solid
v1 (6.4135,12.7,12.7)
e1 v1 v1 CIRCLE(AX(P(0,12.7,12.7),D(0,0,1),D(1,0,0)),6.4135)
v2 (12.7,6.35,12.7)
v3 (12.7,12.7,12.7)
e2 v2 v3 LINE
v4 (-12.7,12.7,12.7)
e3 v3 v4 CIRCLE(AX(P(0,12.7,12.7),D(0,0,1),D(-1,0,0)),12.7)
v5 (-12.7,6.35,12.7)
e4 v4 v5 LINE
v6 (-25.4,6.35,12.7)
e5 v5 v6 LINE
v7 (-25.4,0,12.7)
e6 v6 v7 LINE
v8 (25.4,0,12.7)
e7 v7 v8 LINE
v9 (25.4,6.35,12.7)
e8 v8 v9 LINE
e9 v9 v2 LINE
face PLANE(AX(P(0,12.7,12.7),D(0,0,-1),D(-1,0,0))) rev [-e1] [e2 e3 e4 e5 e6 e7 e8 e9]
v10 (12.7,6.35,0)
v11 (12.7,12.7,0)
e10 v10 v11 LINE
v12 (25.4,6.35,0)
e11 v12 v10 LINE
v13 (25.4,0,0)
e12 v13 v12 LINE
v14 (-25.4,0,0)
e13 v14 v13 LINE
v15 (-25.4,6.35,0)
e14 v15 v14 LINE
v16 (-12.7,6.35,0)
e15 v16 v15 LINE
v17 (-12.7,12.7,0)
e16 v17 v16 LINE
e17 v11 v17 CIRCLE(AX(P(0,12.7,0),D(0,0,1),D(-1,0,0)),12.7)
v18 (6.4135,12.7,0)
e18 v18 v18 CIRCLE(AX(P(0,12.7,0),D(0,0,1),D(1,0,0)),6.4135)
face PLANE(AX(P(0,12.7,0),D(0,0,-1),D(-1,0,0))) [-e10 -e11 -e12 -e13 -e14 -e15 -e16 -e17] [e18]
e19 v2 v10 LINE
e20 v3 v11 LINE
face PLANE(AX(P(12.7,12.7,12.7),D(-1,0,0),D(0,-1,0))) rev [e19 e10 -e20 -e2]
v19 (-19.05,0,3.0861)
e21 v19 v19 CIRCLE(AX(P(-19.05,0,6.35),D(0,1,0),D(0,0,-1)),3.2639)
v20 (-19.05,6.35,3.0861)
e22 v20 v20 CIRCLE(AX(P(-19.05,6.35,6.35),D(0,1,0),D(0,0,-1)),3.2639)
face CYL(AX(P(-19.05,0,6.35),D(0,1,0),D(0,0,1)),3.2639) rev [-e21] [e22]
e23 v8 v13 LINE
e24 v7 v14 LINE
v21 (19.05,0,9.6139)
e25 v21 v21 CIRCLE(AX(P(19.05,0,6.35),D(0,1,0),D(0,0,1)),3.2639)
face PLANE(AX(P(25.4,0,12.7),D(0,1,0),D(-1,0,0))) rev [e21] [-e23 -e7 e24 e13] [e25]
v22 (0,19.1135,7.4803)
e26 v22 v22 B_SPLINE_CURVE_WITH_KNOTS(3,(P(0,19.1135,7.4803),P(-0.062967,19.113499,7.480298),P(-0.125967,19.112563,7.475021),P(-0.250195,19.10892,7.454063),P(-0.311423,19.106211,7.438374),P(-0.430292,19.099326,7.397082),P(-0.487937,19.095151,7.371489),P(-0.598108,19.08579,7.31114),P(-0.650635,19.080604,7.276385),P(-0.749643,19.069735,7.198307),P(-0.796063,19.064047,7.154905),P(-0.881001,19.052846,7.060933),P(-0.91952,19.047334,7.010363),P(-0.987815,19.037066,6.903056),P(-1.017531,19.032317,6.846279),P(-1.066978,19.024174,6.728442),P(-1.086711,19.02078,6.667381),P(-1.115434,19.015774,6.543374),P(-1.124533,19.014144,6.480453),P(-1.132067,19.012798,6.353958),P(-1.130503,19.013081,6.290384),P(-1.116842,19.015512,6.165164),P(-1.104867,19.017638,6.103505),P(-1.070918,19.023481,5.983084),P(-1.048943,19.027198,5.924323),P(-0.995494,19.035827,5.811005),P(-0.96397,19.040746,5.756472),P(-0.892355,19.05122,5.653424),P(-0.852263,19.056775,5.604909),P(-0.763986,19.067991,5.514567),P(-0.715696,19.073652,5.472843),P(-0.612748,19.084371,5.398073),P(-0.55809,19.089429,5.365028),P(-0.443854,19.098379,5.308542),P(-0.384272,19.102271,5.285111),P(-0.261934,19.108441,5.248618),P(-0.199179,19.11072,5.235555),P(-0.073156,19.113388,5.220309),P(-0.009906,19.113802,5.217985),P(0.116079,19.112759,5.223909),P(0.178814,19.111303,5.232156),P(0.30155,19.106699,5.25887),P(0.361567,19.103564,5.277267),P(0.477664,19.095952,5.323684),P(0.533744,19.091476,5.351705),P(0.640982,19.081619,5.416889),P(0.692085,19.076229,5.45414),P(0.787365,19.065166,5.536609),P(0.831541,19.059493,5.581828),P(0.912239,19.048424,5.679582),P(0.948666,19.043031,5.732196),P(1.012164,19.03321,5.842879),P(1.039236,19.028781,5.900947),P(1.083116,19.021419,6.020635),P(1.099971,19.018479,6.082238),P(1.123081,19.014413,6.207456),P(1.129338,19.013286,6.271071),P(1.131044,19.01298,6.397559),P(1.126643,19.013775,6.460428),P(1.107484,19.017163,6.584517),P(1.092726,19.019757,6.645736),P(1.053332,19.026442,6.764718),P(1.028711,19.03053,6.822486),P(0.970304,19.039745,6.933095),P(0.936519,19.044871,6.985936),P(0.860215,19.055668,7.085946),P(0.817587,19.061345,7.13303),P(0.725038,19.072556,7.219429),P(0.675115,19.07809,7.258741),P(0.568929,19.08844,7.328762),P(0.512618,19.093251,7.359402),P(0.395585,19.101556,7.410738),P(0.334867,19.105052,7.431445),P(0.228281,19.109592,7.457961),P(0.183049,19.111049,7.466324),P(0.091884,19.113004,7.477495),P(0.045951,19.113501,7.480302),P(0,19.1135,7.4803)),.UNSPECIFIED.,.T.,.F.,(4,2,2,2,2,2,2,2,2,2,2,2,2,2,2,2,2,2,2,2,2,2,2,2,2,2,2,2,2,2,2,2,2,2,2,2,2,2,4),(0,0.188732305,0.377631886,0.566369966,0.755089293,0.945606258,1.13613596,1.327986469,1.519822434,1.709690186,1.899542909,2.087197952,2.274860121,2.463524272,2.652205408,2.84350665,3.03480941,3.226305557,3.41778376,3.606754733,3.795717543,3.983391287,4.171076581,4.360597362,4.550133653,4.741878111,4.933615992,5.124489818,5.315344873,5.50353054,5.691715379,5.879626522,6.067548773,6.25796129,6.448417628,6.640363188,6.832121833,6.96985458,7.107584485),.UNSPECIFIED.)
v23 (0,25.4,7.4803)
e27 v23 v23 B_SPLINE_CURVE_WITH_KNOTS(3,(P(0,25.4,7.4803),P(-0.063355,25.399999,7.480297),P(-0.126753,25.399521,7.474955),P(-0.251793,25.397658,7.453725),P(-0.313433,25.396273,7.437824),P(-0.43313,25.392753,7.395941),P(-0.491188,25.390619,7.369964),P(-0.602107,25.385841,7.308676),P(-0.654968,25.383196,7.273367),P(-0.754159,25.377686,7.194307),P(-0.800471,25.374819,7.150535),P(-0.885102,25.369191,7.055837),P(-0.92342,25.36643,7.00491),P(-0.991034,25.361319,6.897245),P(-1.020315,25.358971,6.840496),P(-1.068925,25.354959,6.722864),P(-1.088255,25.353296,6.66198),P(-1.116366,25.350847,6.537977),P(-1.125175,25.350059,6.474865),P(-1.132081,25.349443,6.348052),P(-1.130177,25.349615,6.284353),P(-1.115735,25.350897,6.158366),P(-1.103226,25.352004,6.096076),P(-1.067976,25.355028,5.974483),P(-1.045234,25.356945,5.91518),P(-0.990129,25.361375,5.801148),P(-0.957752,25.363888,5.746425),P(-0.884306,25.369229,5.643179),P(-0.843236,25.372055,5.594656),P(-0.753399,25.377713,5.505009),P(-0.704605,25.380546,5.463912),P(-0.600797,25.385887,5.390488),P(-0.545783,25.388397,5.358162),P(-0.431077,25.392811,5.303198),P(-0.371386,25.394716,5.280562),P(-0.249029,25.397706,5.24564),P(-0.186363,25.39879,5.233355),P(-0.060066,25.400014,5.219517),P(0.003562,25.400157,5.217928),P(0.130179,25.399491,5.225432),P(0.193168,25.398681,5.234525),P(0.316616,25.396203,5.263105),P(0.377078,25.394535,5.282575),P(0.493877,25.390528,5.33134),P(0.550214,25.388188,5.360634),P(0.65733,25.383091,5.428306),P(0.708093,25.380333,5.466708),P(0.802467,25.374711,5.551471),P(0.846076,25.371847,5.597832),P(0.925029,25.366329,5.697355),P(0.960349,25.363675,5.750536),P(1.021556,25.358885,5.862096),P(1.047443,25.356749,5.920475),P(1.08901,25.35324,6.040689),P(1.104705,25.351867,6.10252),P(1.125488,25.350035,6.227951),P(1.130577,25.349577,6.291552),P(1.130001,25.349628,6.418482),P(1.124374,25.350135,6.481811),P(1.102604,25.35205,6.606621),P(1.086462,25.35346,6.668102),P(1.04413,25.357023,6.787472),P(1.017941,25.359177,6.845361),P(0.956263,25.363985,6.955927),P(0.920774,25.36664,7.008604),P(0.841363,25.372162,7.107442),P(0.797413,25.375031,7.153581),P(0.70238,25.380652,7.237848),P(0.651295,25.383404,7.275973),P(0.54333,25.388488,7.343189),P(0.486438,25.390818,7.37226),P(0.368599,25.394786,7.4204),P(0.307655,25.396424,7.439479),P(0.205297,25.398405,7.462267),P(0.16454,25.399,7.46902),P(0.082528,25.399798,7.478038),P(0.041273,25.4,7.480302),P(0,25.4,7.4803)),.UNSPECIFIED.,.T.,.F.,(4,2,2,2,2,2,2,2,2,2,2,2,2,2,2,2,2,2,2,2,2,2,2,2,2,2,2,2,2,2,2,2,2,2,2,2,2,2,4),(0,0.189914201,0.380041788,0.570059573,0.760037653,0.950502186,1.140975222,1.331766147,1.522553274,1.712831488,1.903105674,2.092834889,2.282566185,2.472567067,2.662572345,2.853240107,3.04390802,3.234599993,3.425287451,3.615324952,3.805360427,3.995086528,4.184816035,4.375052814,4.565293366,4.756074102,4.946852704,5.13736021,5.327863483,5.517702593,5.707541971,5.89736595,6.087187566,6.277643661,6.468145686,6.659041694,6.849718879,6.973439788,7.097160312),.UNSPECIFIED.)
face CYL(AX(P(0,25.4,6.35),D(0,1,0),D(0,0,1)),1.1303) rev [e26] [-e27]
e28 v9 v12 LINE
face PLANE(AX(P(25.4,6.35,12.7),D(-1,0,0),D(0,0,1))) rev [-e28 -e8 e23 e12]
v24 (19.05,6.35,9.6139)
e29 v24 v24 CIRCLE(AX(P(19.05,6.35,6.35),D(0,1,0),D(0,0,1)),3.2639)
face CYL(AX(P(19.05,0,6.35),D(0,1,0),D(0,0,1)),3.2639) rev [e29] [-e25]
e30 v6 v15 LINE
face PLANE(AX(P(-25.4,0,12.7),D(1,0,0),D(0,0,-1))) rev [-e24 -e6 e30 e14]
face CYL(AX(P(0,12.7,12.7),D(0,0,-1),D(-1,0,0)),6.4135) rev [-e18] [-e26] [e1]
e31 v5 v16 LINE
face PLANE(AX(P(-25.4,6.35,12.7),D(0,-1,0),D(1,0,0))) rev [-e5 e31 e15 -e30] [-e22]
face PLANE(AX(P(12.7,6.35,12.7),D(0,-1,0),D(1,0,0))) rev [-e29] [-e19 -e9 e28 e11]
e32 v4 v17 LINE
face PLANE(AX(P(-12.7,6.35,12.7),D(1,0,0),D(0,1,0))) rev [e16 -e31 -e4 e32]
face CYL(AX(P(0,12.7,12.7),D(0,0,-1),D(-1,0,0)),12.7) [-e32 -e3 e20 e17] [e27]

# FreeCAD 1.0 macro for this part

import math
import FreeCAD as App
import Part
import Sketcher
Q = App.Units.Quantity

doc = App.newDocument("Part")
params = doc.addObject("Spreadsheet::Sheet", "Params")
for row, (alias, value) in enumerate([
    ("sketch1_radius", "0.5 in"),
    ("sketch1_width", "2 in"),
    ("sketch1_diameter", "0.505 in"),
    ("sketch1_height", "0.25 in"),
    ("pad1_length", "0.5 in"),
    ("sketch2_diameter", "0.257 in"),
    ("sketch3_diameter", "0.089 in"),
    ("hole_diameter", "0.089 in"),
    ("hole_depth", "0.3 in"),
], start=1):
    params.set(f"A{row}", alias)
    params.set(f"B{row}", "=" + value)
    params.setAlias(f"B{row}", alias)

body = doc.addObject("PartDesign::Body", "Body")

# Sketch on XY plane
sketch1 = body.newObject("Sketcher::SketchObject", "Sketch")
sketch1.AttachmentSupport = (doc.getObject("XY_Plane"), [""])
sketch1.MapMode = "FlatFace"
sketch1.addGeometry([
    Part.LineSegment(App.Vector(13, 6, 0), App.Vector(13, 13, 0)),  # 0
    Part.ArcOfCircle(Part.Circle(App.Vector(0, 13, 0), App.Vector(0, 0, 1), 13), math.radians(0), math.radians(180)),  # 1
    Part.LineSegment(App.Vector(-13, 13, 0), App.Vector(-13, 6, 0)),  # 2
    Part.LineSegment(App.Vector(-13, 6, 0), App.Vector(-25, 6, 0)),  # 3
    Part.LineSegment(App.Vector(-25, 6, 0), App.Vector(-25, 0, 0)),  # 4
    Part.LineSegment(App.Vector(-25, 0, 0), App.Vector(25, 0, 0)),  # 5
    Part.LineSegment(App.Vector(25, 0, 0), App.Vector(25, 6, 0)),  # 6
    Part.LineSegment(App.Vector(25, 6, 0), App.Vector(13, 6, 0)),  # 7
    Part.Circle(App.Vector(0, 13, 0), App.Vector(0, 0, 1), 6),  # 8
], False)
sketch1.addConstraint([
    Sketcher.Constraint("Tangent", 0, 2, 1, 1),
    Sketcher.Constraint("Tangent", 1, 2, 2, 1),
    Sketcher.Constraint("Coincident", 2, 2, 3, 1),
    Sketcher.Constraint("Coincident", 3, 2, 4, 1),
    Sketcher.Constraint("Coincident", 4, 2, 5, 1),
    Sketcher.Constraint("Coincident", 5, 2, 6, 1),
    Sketcher.Constraint("Coincident", 6, 2, 7, 1),
    Sketcher.Constraint("Coincident", 7, 2, 0, 1),
    Sketcher.Constraint("Vertical", 0),
    Sketcher.Constraint("Vertical", 2),
    Sketcher.Constraint("Horizontal", 3),
    Sketcher.Constraint("Vertical", 4),
    Sketcher.Constraint("Horizontal", 5),
    Sketcher.Constraint("Vertical", 6),
    Sketcher.Constraint("Horizontal", 7),
    Sketcher.Constraint("Coincident", 8, 3, 1, 3),
    Sketcher.Constraint("Symmetric", 4, 2, 5, 2, -1, 1),
    Sketcher.Constraint("Symmetric", 2, 2, 7, 2, -2),
    Sketcher.Constraint("Equal", 2, 4),
    Sketcher.Constraint("Radius", 1, Q("0.5 in")),
    Sketcher.Constraint("DistanceX", 5, 1, 5, 2, Q("2 in")),
    Sketcher.Constraint("Diameter", 8, Q("0.505 in")),
    Sketcher.Constraint("DistanceY", 0, 1, 0, 2, Q("0.25 in")),
])
sketch1.setExpression("Constraints[19]", "Params.sketch1_radius")
sketch1.setExpression("Constraints[20]", "Params.sketch1_width")
sketch1.setExpression("Constraints[21]", "Params.sketch1_diameter")
sketch1.setExpression("Constraints[22]", "Params.sketch1_height")
pad1 = body.newObject("PartDesign::Pad", "Pad")
pad1.Profile = sketch1
pad1.setExpression("Length", "Params.pad1_length")

# Sketch on XZ plane
sketch2 = body.newObject("Sketcher::SketchObject", "Sketch001")
sketch2.AttachmentSupport = (doc.getObject("XZ_Plane"), [""])
sketch2.MapMode = "FlatFace"
sketch2.AttachmentOffset = App.Placement(App.Vector(0, 0, -0.25 * 25.4), App.Rotation())
sketch2.addGeometry([
    Part.Circle(App.Vector(19.1, 6.3, 0), App.Vector(0, 0, 1), 3.3),
    Part.Circle(App.Vector(-19.1, 6.3, 0), App.Vector(0, 0, 1), 3.3),
], False)
sketch2.addConstraint([
    Sketcher.Constraint("Equal", 0, 1),
    Sketcher.Constraint("Symmetric", 0, 3, 1, 3, -2),
    Sketcher.Constraint("Diameter", 0, Q("0.257 in")),
    Sketcher.Constraint("DistanceX", 1, 3, 0, 3, Q("1.5 in")),
    Sketcher.Constraint("DistanceY", -1, 1, 0, 3, Q("0.25 in")),
])
sketch2.setExpression("Constraints[2]", "Params.sketch2_diameter")
pocket1 = body.newObject("PartDesign::Pocket", "Pocket")
pocket1.Profile = sketch2
pocket1.Type = "ThroughAll"
pocket1.Reversed = True

# Sketch on XZ plane
sketch3 = body.newObject("Sketcher::SketchObject", "Sketch002")
sketch3.AttachmentSupport = (doc.getObject("XZ_Plane"), [""])
sketch3.MapMode = "FlatFace"
sketch3.AttachmentOffset = App.Placement(App.Vector(0, 0, -1 * 25.4), App.Rotation())
sketch3.addGeometry(Part.Circle(App.Vector(0, 6.3, 0), App.Vector(0, 0, 1), 1.1), False)
sketch3.addConstraint([
    Sketcher.Constraint("PointOnObject", 0, 3, -2),
    Sketcher.Constraint("Diameter", 0, Q("0.089 in")),
    Sketcher.Constraint("DistanceY", -1, 1, 0, 3, Q("0.25 in")),
])
sketch3.setExpression("Constraints[1]", "Params.sketch3_diameter")
doc.recompute()
hole = body.newObject("PartDesign::Hole", "Hole")
hole.Profile = sketch3
hole.ThreadType = "None"
hole.setExpression("Diameter", "Params.hole_diameter")
hole.DepthType = "Dimension"
hole.setExpression("Depth", "Params.hole_depth")
hole.DrillPoint = "Angled"
hole.DrillPointAngle = 118
hole.Reversed = True

doc.recompute()
